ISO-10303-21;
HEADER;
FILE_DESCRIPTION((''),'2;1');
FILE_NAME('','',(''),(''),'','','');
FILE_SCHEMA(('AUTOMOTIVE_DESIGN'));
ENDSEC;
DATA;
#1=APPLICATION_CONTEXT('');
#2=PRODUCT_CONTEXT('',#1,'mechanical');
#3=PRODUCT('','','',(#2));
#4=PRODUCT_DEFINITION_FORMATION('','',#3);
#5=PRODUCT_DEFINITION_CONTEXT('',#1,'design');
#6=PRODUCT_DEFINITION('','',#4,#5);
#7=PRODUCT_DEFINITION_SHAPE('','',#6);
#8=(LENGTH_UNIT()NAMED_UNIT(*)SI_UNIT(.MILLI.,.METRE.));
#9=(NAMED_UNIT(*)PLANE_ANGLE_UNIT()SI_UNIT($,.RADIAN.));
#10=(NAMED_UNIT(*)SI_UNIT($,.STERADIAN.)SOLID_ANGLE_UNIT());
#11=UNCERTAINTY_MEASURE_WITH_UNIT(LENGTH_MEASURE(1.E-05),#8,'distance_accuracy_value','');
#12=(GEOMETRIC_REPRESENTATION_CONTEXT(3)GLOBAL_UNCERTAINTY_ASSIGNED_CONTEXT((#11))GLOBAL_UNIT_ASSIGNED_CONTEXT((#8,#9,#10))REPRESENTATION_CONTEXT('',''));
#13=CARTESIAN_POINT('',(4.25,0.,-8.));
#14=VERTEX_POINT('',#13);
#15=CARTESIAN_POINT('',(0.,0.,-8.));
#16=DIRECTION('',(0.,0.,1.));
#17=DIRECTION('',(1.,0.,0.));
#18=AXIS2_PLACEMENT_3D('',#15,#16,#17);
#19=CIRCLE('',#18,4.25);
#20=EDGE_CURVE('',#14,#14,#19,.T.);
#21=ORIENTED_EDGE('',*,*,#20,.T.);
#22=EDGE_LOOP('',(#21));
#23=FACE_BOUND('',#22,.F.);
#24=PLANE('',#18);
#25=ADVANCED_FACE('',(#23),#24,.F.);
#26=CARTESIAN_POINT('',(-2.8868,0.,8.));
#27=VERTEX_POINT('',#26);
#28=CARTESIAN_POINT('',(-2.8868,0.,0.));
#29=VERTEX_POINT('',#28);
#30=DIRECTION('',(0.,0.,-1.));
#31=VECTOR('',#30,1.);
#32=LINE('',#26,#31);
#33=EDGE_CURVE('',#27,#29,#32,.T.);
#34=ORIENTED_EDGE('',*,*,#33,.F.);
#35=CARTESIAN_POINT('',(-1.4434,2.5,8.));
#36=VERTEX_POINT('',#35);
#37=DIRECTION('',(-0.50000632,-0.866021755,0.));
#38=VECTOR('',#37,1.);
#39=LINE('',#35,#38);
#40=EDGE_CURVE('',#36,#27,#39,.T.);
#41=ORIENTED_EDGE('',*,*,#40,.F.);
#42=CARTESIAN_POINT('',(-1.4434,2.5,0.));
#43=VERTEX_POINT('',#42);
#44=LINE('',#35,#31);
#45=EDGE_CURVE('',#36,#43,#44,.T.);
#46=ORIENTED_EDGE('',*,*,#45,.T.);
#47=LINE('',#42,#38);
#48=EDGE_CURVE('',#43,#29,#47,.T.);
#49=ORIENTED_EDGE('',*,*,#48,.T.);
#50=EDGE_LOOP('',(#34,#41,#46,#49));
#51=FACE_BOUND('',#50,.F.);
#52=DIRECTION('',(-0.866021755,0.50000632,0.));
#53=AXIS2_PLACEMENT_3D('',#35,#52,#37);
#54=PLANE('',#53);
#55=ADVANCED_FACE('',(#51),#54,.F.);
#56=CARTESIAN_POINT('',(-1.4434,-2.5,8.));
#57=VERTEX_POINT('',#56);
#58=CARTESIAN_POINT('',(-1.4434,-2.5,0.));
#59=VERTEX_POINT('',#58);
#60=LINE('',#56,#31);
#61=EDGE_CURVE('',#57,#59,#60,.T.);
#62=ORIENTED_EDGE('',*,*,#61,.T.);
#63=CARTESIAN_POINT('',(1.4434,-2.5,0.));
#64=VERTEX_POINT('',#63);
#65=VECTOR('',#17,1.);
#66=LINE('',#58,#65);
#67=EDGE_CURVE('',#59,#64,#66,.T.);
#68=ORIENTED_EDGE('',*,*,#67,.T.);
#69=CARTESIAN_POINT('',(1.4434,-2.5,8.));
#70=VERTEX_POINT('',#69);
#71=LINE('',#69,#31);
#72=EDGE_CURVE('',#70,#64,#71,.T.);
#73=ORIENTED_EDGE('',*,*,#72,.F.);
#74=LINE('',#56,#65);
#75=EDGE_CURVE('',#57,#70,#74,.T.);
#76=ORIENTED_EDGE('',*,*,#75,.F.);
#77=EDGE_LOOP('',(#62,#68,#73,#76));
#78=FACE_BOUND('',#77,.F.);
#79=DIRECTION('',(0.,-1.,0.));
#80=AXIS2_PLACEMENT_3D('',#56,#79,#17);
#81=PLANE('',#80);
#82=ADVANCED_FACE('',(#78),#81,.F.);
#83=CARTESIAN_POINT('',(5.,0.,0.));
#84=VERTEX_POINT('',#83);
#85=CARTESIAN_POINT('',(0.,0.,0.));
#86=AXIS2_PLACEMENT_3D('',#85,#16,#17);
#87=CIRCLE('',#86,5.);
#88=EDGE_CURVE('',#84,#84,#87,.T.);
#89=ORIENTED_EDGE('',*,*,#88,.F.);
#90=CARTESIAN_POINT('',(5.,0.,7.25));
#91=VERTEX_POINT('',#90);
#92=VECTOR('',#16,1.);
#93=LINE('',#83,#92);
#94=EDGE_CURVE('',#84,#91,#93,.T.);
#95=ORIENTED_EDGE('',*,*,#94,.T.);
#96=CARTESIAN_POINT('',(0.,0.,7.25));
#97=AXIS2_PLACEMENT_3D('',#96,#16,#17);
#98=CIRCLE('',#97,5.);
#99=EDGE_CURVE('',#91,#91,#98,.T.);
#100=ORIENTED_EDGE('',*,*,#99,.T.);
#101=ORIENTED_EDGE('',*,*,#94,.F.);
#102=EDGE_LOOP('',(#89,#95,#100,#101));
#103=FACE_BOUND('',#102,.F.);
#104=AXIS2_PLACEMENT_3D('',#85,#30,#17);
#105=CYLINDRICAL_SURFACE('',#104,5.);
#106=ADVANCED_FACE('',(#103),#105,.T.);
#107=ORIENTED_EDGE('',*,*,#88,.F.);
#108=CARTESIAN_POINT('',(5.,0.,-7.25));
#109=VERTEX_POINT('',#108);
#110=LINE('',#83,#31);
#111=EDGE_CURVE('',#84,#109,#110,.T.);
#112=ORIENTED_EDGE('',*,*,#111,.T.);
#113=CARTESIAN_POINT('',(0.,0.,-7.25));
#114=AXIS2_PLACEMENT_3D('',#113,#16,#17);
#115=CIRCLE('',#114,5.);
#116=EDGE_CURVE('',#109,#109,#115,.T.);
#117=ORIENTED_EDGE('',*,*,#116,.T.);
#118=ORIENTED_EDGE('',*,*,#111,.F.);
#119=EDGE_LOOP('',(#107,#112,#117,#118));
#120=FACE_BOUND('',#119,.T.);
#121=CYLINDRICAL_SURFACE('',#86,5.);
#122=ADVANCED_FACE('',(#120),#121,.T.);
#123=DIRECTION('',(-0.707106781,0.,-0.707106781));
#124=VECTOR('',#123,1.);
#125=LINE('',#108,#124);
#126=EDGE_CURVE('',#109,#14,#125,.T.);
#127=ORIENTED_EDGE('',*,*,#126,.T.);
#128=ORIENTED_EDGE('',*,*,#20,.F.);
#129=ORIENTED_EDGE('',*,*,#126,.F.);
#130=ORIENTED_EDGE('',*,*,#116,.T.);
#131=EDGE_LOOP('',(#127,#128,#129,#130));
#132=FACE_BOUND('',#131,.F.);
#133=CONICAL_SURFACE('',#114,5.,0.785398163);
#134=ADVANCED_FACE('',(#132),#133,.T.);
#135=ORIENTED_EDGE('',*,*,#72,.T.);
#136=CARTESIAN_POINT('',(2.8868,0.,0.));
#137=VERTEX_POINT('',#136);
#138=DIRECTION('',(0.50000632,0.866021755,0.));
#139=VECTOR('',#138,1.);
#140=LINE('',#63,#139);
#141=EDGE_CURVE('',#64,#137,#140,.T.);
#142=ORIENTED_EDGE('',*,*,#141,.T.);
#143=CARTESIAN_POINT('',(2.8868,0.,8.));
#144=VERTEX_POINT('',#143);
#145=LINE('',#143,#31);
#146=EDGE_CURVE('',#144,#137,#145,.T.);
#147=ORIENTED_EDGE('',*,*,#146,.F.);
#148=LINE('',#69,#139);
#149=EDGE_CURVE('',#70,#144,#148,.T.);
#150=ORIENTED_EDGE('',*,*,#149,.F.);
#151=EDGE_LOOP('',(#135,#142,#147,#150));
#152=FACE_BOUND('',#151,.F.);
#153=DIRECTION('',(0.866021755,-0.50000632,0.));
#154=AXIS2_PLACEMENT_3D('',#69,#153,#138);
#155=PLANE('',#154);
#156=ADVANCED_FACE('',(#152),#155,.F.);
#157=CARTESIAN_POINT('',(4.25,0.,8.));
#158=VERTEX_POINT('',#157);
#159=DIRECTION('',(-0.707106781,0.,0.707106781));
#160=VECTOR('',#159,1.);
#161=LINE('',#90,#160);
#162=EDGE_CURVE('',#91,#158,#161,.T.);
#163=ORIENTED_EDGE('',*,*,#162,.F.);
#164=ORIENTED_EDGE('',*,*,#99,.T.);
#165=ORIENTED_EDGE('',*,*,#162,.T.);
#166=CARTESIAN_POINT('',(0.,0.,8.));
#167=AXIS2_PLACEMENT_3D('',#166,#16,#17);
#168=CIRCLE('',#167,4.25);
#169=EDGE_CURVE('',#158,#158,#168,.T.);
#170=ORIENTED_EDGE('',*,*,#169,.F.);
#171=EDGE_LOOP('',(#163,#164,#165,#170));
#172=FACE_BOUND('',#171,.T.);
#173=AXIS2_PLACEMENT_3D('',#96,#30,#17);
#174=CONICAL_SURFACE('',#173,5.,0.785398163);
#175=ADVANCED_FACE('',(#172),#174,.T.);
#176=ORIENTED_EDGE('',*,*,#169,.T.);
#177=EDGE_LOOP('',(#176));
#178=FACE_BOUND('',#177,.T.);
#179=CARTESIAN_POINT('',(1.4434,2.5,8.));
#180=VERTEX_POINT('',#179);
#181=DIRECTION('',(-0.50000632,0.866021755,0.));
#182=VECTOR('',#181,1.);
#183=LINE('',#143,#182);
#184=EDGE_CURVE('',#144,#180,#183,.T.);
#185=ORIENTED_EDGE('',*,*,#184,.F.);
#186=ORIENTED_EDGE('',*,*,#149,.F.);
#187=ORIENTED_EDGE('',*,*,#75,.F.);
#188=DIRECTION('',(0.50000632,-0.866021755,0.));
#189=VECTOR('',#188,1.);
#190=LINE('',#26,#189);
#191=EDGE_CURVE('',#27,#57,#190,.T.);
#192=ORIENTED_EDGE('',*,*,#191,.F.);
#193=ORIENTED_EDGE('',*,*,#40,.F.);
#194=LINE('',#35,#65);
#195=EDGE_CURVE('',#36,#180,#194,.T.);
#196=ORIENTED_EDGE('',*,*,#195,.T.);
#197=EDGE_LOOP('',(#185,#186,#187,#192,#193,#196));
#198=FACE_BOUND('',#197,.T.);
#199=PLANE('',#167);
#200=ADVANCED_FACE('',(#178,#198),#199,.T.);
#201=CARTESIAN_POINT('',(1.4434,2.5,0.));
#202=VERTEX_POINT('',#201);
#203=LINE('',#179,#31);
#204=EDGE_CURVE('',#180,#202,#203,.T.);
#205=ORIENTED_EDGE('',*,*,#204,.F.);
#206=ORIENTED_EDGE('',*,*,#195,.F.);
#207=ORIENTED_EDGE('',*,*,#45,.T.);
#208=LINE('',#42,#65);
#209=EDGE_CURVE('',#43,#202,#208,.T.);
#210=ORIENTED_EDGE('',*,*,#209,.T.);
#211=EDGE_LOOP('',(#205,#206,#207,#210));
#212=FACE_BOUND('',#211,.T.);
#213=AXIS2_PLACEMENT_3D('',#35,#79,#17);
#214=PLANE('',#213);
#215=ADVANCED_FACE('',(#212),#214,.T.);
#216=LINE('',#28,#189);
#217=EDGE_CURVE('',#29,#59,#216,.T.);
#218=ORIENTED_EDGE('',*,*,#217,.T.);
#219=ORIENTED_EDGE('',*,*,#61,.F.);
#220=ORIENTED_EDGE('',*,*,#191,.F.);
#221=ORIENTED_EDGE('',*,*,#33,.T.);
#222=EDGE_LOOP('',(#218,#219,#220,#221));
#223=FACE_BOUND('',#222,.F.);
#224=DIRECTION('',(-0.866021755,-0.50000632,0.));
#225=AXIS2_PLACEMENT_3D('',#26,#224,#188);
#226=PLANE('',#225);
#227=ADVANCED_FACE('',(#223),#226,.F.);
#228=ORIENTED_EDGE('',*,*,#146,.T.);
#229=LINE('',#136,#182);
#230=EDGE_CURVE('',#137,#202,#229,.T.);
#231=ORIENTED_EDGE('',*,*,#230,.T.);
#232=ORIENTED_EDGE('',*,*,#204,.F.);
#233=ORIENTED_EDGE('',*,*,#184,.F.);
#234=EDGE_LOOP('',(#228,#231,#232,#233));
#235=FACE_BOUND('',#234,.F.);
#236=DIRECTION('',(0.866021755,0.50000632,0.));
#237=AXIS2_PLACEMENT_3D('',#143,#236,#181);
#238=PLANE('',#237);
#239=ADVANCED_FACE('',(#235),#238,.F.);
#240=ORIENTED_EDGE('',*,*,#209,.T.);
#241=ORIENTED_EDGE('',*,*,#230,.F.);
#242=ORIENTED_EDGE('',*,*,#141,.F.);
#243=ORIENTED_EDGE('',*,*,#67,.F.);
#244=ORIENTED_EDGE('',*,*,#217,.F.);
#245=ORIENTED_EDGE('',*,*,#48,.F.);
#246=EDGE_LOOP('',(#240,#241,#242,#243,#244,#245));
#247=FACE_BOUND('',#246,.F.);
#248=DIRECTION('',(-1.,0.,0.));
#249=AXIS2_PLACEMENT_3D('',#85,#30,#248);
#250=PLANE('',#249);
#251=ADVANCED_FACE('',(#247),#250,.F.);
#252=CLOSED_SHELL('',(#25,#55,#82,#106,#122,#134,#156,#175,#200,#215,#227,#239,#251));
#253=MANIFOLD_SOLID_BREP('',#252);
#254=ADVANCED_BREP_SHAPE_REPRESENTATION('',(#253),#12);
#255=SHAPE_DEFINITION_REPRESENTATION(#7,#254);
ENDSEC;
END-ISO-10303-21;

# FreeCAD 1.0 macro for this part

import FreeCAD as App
import Part
import Sketcher
Q = App.Units.Quantity


def edges_at(feature, points):
    """Names of the edges that pass closest to the given points."""
    edges = feature.Shape.Edges
    near = lambda p: min(range(len(edges)), key=lambda i: edges[i].distToShape(Part.Vertex(*p))[0])
    return sorted({f"Edge{near(p) + 1}" for p in points})


def add_polygon(sketch, points):
    """Adds a closed chain of lines whose ends are joined by coincident constraints."""
    first, n = sketch.GeometryCount, len(points)
    for a, b in zip(points, points[1:] + points[:1]):
        sketch.addGeometry(Part.LineSegment(App.Vector(*a, 0), App.Vector(*b, 0)), False)
    for i in range(n):
        sketch.addConstraint(Sketcher.Constraint("Coincident", first + i, 2, first + (i + 1) % n, 1))

doc = App.newDocument("Part")
params = doc.addObject("Spreadsheet::Sheet", "Params")
for row, (alias, value) in enumerate([
    ("sketch1_diameter", "10 mm"),
    ("pad1_length", "16 mm"),
    ("chamfer_size", "0.75 mm"),
    ("pocket1_length", "8 mm"),
], start=1):
    params.set(f"A{row}", alias)
    params.set(f"B{row}", "=" + value)
    params.setAlias(f"B{row}", alias)

body = doc.addObject("PartDesign::Body", "Body")

# Sketch on XY plane
sketch1 = doc.addObject("Sketcher::SketchObject", "Sketch")
body.addObject(sketch1)
sketch1.AttachmentSupport = (doc.XY_Plane, [""])
sketch1.MapMode = "FlatFace"
sketch1.addGeometry(Part.Circle(App.Vector(0, 0, 0), App.Vector(0, 0, 1), 5), False)
sketch1.addConstraint([
    Sketcher.Constraint("Coincident", 0, 3, -1, 1),
    Sketcher.Constraint("Diameter", 0, 10.0),
])
sketch1.setExpression("Constraints[1]", "Params.sketch1_diameter")
pad1 = doc.addObject("PartDesign::Pad", "Pad")
body.addObject(pad1)
pad1.Profile = sketch1
pad1.setExpression("Length", "Params.pad1_length")
pad1.Midplane = True
doc.recompute()

chamfer = doc.addObject("PartDesign::Chamfer", "Chamfer")
body.addObject(chamfer)
chamfer.Base = (pad1, edges_at(pad1, [(-5, 0, -8), (-5, 0, 8)]))
chamfer.setExpression("Size", "Params.chamfer_size")

# Sketch on XY plane
sketch2 = doc.addObject("Sketcher::SketchObject", "Sketch001")
body.addObject(sketch2)
sketch2.AttachmentSupport = (doc.XY_Plane, [""])
sketch2.MapMode = "FlatFace"
sketch2.AttachmentOffset = App.Placement(App.Vector(0, 0, 8), App.Rotation())
add_polygon(sketch2, [(1.4434, 2.5), (-1.4434, 2.5), (-2.8868, 0), (-1.4434, -2.5), (1.4434, -2.5), (2.8868, 0)])  # lines 0-5
sketch2.addConstraint([
    Sketcher.Constraint("Horizontal", 0),
    Sketcher.Constraint("Horizontal", 3),
    Sketcher.Constraint("Symmetric", 0, 2, 3, 2, -1, 1),
    Sketcher.Constraint("Symmetric", 1, 2, 4, 2, -1, 1),
    Sketcher.Constraint("PointOnObject", 1, 2, -1),
    Sketcher.Constraint("Parallel", 2, 5),
    Sketcher.Constraint("Vertical", 0, 2, 2, 2),
    Sketcher.Constraint("Angle", 1, Q("-120.0004 deg")),
    Sketcher.Constraint("DistanceY", 2, 2, 0, 2, 5.0),
    Sketcher.Constraint("DistanceX", 0, 2, 0, 1, 2.8868),
])
pocket1 = doc.addObject("PartDesign::Pocket", "Pocket")
body.addObject(pocket1)
pocket1.Profile = sketch2
pocket1.setExpression("Length", "Params.pocket1_length")

doc.recompute()
